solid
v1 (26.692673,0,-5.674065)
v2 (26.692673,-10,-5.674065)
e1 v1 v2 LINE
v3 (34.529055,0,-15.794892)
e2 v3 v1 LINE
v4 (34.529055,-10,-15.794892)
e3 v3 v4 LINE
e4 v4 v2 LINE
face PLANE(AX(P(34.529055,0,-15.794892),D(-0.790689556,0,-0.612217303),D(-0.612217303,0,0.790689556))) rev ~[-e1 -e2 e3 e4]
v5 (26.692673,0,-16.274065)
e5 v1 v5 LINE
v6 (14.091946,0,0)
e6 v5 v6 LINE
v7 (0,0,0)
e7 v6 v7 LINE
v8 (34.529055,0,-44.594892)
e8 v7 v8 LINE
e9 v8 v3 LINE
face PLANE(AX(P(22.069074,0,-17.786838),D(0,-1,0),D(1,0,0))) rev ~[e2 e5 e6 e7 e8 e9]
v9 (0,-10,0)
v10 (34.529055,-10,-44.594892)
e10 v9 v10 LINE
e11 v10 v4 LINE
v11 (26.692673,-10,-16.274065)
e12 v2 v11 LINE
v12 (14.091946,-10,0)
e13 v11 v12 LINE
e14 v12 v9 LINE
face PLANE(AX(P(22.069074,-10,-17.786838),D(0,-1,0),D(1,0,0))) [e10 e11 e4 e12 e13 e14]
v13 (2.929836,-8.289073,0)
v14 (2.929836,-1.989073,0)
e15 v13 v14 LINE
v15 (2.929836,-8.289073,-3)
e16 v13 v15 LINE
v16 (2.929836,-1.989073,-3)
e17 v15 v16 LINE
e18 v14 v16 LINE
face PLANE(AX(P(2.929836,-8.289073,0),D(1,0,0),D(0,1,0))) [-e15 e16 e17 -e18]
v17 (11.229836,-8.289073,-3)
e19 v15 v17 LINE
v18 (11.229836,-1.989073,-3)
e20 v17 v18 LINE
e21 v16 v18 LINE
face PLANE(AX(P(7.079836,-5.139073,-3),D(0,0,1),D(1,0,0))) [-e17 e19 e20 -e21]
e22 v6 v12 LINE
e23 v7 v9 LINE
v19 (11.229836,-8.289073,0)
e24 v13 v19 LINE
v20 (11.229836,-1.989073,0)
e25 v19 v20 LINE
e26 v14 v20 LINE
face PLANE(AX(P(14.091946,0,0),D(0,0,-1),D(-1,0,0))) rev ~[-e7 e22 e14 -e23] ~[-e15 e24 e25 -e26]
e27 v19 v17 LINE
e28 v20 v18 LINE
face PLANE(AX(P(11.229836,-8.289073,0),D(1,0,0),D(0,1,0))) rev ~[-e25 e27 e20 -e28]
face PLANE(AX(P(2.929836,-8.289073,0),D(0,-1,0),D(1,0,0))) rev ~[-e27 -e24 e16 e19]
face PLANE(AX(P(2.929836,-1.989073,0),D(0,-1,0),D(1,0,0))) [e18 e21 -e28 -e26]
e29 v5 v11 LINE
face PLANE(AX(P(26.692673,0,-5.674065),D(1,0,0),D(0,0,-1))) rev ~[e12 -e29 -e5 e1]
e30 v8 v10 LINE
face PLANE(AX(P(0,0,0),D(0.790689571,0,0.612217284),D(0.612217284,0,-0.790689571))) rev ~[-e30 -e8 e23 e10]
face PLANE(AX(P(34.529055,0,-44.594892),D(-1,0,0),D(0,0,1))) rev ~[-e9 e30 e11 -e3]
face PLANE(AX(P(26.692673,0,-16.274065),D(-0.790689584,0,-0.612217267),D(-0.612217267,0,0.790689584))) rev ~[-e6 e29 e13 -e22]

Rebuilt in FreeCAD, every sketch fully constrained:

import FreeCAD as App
import Part
import Sketcher
Q = App.Units.Quantity


def add_polygon(sketch, points):
    """Adds a closed chain of lines whose ends are joined by coincident constraints."""
    first, n = sketch.GeometryCount, len(points)
    for a, b in zip(points, points[1:] + points[:1]):
        sketch.addGeometry(Part.LineSegment(App.Vector(*a, 0), App.Vector(*b, 0)), False)
    for i in range(n):
        sketch.addConstraint(Sketcher.Constraint("Coincident", first + i, 2, first + (i + 1) % n, 1))

doc = App.newDocument("Part")
body = doc.addObject("PartDesign::Body", "Body")

# Sketch on XZ plane
sketch1 = body.newObject("Sketcher::SketchObject", "Sketch")
sketch1.AttachmentSupport = (doc.getObject("XZ_Plane"), [""])
sketch1.MapMode = "FlatFace"
add_polygon(sketch1, [(14, 0), (0, 0), (35, -45), (35, -16), (27, -6), (27, -16)])  # lines 0-5
sketch1.addConstraint(Sketcher.Constraint("Horizontal", 0))
sketch1.addConstraint(Sketcher.Constraint("Vertical", 2))
sketch1.addConstraint(Sketcher.Constraint("Vertical", 4))
sketch1.addConstraint(Sketcher.Constraint("Coincident", 0, 2, -1, 1))
sketch1.addConstraint(Sketcher.Constraint("Parallel", 1, 3))
sketch1.addConstraint(Sketcher.Constraint("Parallel", 3, 5))
sketch1.addConstraint(Sketcher.Constraint("DistanceY", 2, 1, 2, 2, 28.8))
sketch1.addConstraint(Sketcher.Constraint("DistanceY", 4, 2, 4, 1, 10.6))
sketch1.addConstraint(Sketcher.Constraint("Distance", 1, 56.4))
sketch1.addConstraint(Sketcher.Constraint("Distance", 3, 12.800001))
sketch1.addConstraint(Sketcher.Constraint("Angle", 1, Q("-52.25 deg")))
pad1 = body.newObject("PartDesign::Pad", "Pad")
pad1.Profile = sketch1
pad1.Length = 10

# Sketch on XY plane
sketch2 = body.newObject("Sketcher::SketchObject", "Sketch001")
sketch2.AttachmentSupport = (doc.getObject("XY_Plane"), [""])
sketch2.MapMode = "FlatFace"
add_polygon(sketch2, [(3, -2), (3, -8), (11, -8), (11, -2)])  # lines 0-3
sketch2.addConstraint(Sketcher.Constraint("Vertical", 0))
sketch2.addConstraint(Sketcher.Constraint("Horizontal", 1))
sketch2.addConstraint(Sketcher.Constraint("Vertical", 2))
sketch2.addConstraint(Sketcher.Constraint("Horizontal", 3))
sketch2.addConstraint(Sketcher.Constraint("DistanceX", 1, 1, 1, 2, 8.3))
sketch2.addConstraint(Sketcher.Constraint("DistanceY", 0, 2, 0, 1, 6.3))
sketch2.addConstraint(Sketcher.Constraint("DistanceX", -1, 1, 0, 2, 2.929836))
sketch2.addConstraint(Sketcher.Constraint("DistanceY", 0, 2, -1, 1, 8.289073))
pocket1 = body.newObject("PartDesign::Pocket", "Pocket")
pocket1.Profile = sketch2
pocket1.Length = 3

doc.recompute()
